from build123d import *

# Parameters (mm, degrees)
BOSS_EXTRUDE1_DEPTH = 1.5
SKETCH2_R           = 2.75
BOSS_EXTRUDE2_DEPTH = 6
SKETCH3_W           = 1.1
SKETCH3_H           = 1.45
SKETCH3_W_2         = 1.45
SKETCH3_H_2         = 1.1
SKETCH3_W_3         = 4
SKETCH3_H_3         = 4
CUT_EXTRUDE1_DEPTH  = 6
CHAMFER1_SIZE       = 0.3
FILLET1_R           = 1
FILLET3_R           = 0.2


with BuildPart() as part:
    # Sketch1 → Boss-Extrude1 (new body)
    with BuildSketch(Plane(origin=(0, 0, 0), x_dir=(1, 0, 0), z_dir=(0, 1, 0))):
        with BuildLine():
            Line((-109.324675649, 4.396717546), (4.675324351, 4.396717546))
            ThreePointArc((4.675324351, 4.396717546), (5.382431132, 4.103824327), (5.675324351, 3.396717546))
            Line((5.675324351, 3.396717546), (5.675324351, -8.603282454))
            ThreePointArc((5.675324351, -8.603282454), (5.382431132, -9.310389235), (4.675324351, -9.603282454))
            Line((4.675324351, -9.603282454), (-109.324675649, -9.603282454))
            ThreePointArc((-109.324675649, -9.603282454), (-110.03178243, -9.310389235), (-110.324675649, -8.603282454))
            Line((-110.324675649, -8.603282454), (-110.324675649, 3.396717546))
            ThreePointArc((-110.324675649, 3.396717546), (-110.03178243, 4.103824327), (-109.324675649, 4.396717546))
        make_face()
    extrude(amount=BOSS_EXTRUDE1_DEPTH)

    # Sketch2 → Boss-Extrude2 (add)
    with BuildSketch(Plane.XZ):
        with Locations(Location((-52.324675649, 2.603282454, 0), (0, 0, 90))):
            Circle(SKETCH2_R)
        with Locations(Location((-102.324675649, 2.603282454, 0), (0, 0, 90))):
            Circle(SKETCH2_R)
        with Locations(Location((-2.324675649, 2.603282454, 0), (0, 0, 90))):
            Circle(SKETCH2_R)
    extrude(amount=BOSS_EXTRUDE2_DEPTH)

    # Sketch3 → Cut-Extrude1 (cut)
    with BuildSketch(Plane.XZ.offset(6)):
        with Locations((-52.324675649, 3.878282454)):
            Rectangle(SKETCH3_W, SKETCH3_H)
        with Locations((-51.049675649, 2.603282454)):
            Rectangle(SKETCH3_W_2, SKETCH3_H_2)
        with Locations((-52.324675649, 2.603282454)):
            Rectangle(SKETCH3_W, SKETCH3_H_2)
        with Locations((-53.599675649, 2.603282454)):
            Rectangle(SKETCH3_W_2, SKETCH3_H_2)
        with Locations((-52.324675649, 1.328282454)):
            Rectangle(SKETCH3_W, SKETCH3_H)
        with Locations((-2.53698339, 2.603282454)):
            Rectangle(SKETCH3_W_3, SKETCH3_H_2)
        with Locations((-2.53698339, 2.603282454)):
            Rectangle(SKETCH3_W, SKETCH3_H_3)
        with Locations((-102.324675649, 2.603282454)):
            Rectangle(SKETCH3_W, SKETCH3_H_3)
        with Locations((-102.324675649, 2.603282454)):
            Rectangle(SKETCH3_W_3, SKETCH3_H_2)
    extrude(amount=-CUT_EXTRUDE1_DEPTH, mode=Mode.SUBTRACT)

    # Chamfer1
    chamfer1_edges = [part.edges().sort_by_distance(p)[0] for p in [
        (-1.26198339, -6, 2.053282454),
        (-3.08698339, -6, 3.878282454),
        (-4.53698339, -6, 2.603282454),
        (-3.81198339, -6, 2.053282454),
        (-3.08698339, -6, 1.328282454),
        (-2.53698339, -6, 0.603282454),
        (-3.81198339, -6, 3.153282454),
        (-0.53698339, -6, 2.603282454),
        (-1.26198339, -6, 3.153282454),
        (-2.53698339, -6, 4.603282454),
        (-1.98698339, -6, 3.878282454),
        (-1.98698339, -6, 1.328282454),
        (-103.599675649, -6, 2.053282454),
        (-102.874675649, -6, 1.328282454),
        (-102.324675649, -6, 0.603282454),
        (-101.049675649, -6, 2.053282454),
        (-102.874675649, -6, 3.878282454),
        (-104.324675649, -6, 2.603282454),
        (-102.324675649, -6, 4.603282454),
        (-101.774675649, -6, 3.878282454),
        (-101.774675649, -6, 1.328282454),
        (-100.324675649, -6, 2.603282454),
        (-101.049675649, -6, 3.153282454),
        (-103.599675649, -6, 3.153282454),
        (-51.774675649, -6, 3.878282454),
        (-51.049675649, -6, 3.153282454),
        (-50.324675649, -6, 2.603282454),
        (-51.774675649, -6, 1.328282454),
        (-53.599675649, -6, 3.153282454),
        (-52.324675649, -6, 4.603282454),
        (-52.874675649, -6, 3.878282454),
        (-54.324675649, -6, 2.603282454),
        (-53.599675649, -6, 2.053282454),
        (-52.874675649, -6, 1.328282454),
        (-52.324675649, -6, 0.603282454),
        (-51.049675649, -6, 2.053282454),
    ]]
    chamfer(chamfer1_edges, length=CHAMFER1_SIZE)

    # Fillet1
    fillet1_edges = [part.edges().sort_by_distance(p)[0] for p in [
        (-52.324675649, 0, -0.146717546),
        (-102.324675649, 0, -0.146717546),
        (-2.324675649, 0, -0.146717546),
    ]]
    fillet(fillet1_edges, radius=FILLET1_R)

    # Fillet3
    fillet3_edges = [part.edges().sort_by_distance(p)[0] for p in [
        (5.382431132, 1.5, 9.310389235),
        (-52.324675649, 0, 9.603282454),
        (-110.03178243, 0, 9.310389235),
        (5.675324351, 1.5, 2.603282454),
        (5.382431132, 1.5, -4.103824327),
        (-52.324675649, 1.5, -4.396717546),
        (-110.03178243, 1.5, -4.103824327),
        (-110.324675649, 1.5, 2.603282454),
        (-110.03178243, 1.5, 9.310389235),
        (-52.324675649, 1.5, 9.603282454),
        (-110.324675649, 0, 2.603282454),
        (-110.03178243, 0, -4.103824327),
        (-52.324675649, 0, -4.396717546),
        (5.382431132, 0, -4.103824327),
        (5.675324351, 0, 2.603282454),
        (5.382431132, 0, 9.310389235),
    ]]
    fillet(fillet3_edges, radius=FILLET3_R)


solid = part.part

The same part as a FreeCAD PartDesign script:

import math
import FreeCAD as App
import Part
import Sketcher
Q = App.Units.Quantity


def edges_at(feature, points):
    """Names of the edges that pass closest to the given points."""
    edges = feature.Shape.Edges
    near = lambda p: min(range(len(edges)), key=lambda i: edges[i].distToShape(Part.Vertex(*p))[0])
    return sorted({f"Edge{near(p) + 1}" for p in points})


def add_polygon(sketch, points):
    """Adds a closed chain of lines whose ends are joined by coincident constraints."""
    first, n = sketch.GeometryCount, len(points)
    for a, b in zip(points, points[1:] + points[:1]):
        sketch.addGeometry(Part.LineSegment(App.Vector(*a, 0), App.Vector(*b, 0)), False)
    for i in range(n):
        sketch.addConstraint(Sketcher.Constraint("Coincident", first + i, 2, first + (i + 1) % n, 1))

doc = App.newDocument("Part")
body = doc.addObject("PartDesign::Body", "Body")

sketch1 = body.newObject("Sketcher::SketchObject", "Sketch")
sketch1.AttachmentSupport = (doc.getObject("XZ_Plane"), [""])
sketch1.MapMode = "FlatFace"
sketch1.addGeometry([
    Part.LineSegment(App.Vector(4.7, -4.4, 0), App.Vector(-109.3, -4.4, 0)),
    Part.ArcOfCircle(Part.Circle(App.Vector(-109.3, -3.4, 0), App.Vector(0, 0, 1), 1), math.radians(-180), math.radians(-90)),
    Part.LineSegment(App.Vector(-110.3, -3.4, 0), App.Vector(-110.3, 8.6, 0)),
    Part.ArcOfCircle(Part.Circle(App.Vector(-109.3, 8.6, 0), App.Vector(0, 0, 1), 1), math.radians(90), math.radians(180)),
    Part.LineSegment(App.Vector(-109.3, 9.6, 0), App.Vector(4.7, 9.6, 0)),
    Part.ArcOfCircle(Part.Circle(App.Vector(4.7, 8.6, 0), App.Vector(0, 0, 1), 1), math.radians(0), math.radians(90)),
    Part.LineSegment(App.Vector(5.7, 8.6, 0), App.Vector(5.7, -3.4, 0)),
    Part.ArcOfCircle(Part.Circle(App.Vector(4.7, -3.4, 0), App.Vector(0, 0, 1), 1), math.radians(-90), math.radians(0)),
], False)
sketch1.addConstraint([
    Sketcher.Constraint("Tangent", 0, 2, 1, 2),
    Sketcher.Constraint("Tangent", 1, 1, 2, 1),
    Sketcher.Constraint("Tangent", 2, 2, 3, 2),
    Sketcher.Constraint("Tangent", 3, 1, 4, 1),
    Sketcher.Constraint("Tangent", 4, 2, 5, 2),
    Sketcher.Constraint("Tangent", 5, 1, 6, 1),
    Sketcher.Constraint("Tangent", 6, 2, 7, 2),
    Sketcher.Constraint("Tangent", 7, 1, 0, 1),
    Sketcher.Constraint("Horizontal", 0),
    Sketcher.Constraint("Vertical", 2),
    Sketcher.Constraint("Horizontal", 4),
    Sketcher.Constraint("Vertical", 6),
    Sketcher.Constraint("Equal", 1, 3),
    Sketcher.Constraint("Equal", 3, 5),
    Sketcher.Constraint("Equal", 5, 7),
    Sketcher.Constraint("Radius", 1, Q("1 mm")),
    Sketcher.Constraint("DistanceX", 0, 2, 0, 1, Q("114 mm")),
    Sketcher.Constraint("DistanceY", 2, 1, 2, 2, Q("12 mm")),
    Sketcher.Constraint("DistanceX", 1, 3, -1, 1, Q("109.324676 mm")),
    Sketcher.Constraint("DistanceY", 1, 3, -1, 1, Q("3.396718 mm")),
])
pad1 = body.newObject("PartDesign::Pad", "Pad")
pad1.Profile = sketch1
pad1.Length = 1.5
pad1.Reversed = True

sketch2 = body.newObject("Sketcher::SketchObject", "Sketch001")
sketch2.AttachmentSupport = (doc.getObject("XZ_Plane"), [""])
sketch2.MapMode = "FlatFace"
sketch2.addGeometry([
    Part.Circle(App.Vector(-52.3, 2.6, 0), App.Vector(0, 0, 1), 2.8),
    Part.Circle(App.Vector(-102.3, 2.6, 0), App.Vector(0, 0, 1), 2.8),
    Part.Circle(App.Vector(-2.3, 2.6, 0), App.Vector(0, 0, 1), 2.8),
], False)
sketch2.addConstraint([
    Sketcher.Constraint("Equal", 0, 1),
    Sketcher.Constraint("Equal", 1, 2),
    Sketcher.Constraint("Horizontal", 0, 3, 1, 3),
    Sketcher.Constraint("Horizontal", 1, 3, 2, 3),
    Sketcher.Constraint("Diameter", 0, Q("5.5 mm")),
    Sketcher.Constraint("DistanceX", 1, 3, 0, 3, Q("50 mm")),
    Sketcher.Constraint("DistanceX", 0, 3, 2, 3, Q("50 mm")),
    Sketcher.Constraint("DistanceX", 0, 3, -1, 1, Q("52.324676 mm")),
    Sketcher.Constraint("DistanceY", -1, 1, 0, 3, Q("2.603282 mm")),
])
pad2 = body.newObject("PartDesign::Pad", "Pad001")
pad2.Profile = sketch2
pad2.Length = 6

sketch3 = body.newObject("Sketcher::SketchObject", "Sketch002")
sketch3.AttachmentSupport = (doc.getObject("XZ_Plane"), [""])
sketch3.MapMode = "FlatFace"
sketch3.AttachmentOffset = App.Placement(App.Vector(0, 0, 6), App.Rotation())
add_polygon(sketch3, [(-52.9, 4.6), (-52.9, 3.2), (-54.3, 3.2), (-54.3, 2.1), (-52.9, 2.1), (-52.9, 0.6), (-51.8, 0.6), (-51.8, 2.1), (-50.3, 2.1), (-50.3, 3.2), (-51.8, 3.2), (-51.8, 4.6)])
add_polygon(sketch3, [(-4.5, 3.2), (-4.5, 2.1), (-3.1, 2.1), (-3.1, 0.6), (-2, 0.6), (-2, 2.1), (-0.5, 2.1), (-0.5, 3.2), (-2, 3.2), (-2, 4.6), (-3.1, 4.6), (-3.1, 3.2)])
add_polygon(sketch3, [(-102.9, 2.1), (-102.9, 0.6), (-101.8, 0.6), (-101.8, 2.1), (-100.3, 2.1), (-100.3, 3.2), (-101.8, 3.2), (-101.8, 4.6), (-102.9, 4.6), (-102.9, 3.2), (-104.3, 3.2), (-104.3, 2.1)])
sketch3.addConstraint([
    Sketcher.Constraint("Vertical", 0),
    Sketcher.Constraint("Horizontal", 1),
    Sketcher.Constraint("Vertical", 2),
    Sketcher.Constraint("Horizontal", 3),
    Sketcher.Constraint("Vertical", 4),
    Sketcher.Constraint("Horizontal", 5),
    Sketcher.Constraint("Vertical", 6),
    Sketcher.Constraint("Horizontal", 7),
    Sketcher.Constraint("Vertical", 8),
    Sketcher.Constraint("Horizontal", 9),
    Sketcher.Constraint("Vertical", 10),
    Sketcher.Constraint("Horizontal", 11),
    Sketcher.Constraint("Vertical", 12),
    Sketcher.Constraint("Horizontal", 13),
    Sketcher.Constraint("Vertical", 14),
    Sketcher.Constraint("Horizontal", 15),
    Sketcher.Constraint("Vertical", 16),
    Sketcher.Constraint("Horizontal", 17),
    Sketcher.Constraint("Vertical", 18),
    Sketcher.Constraint("Horizontal", 19),
    Sketcher.Constraint("Vertical", 20),
    Sketcher.Constraint("Horizontal", 21),
    Sketcher.Constraint("Vertical", 22),
    Sketcher.Constraint("Horizontal", 23),
    Sketcher.Constraint("Vertical", 24),
    Sketcher.Constraint("Horizontal", 25),
    Sketcher.Constraint("Vertical", 26),
    Sketcher.Constraint("Horizontal", 27),
    Sketcher.Constraint("Vertical", 28),
    Sketcher.Constraint("Horizontal", 29),
    Sketcher.Constraint("Vertical", 30),
    Sketcher.Constraint("Horizontal", 31),
    Sketcher.Constraint("Vertical", 32),
    Sketcher.Constraint("Horizontal", 33),
    Sketcher.Constraint("Vertical", 34),
    Sketcher.Constraint("Horizontal", 35),
    Sketcher.Constraint("Horizontal", 3, 2, 6, 2),
    Sketcher.Constraint("Horizontal", 1, 2, 8, 2),
    Sketcher.Constraint("Horizontal", 7, 2, 12, 2),
    Sketcher.Constraint("Horizontal", 5, 2, 14, 2),
    Sketcher.Constraint("Horizontal", 13, 2, 16, 2),
    Sketcher.Constraint("Horizontal", 9, 2, 18, 2),
    Sketcher.Constraint("Horizontal", 11, 2, 20, 2),
    Sketcher.Constraint("Horizontal", 19, 2, 22, 2),
    Sketcher.Constraint("Horizontal", 15, 2, 24, 2),
    Sketcher.Constraint("Horizontal", 17, 2, 26, 2),
    Sketcher.Constraint("Horizontal", 23, 2, 28, 2),
    Sketcher.Constraint("Horizontal", 21, 2, 30, 2),
    Sketcher.Constraint("Horizontal", 29, 2, 32, 2),
    Sketcher.Constraint("Horizontal", 27, 2, 34, 2),
    Sketcher.Constraint("Vertical", 0, 2, 3, 2),
    Sketcher.Constraint("Vertical", 6, 2, 9, 2),
    Sketcher.Constraint("Vertical", 16, 2, 19, 2),
    Sketcher.Constraint("Vertical", 14, 2, 21, 2),
    Sketcher.Constraint("Vertical", 26, 2, 29, 2),
    Sketcher.Constraint("Vertical", 24, 2, 31, 2),
    Sketcher.Constraint("Equal", 3, 7),
    Sketcher.Constraint("Equal", 9, 13),
    Sketcher.Constraint("Equal", 11, 15),
    Sketcher.Constraint("Equal", 13, 17),
    Sketcher.Constraint("Equal", 21, 25),
    Sketcher.Constraint("Equal", 23, 27),
    Sketcher.Constraint("Equal", 29, 33),
    Sketcher.Constraint("Equal", 35, 0),
    Sketcher.Constraint("Equal", 31, 2),
    Sketcher.Constraint("Equal", 0, 4),
    Sketcher.Constraint("DistanceX", 5, 1, 5, 2, Q("1.1 mm")),
    Sketcher.Constraint("DistanceX", 12, 2, 17, 2, Q("4 mm")),
    Sketcher.Constraint("DistanceX", 24, 2, 4, 2, Q("50 mm")),
    Sketcher.Constraint("DistanceX", 0, 2, -1, 1, Q("52.874676 mm")),
    Sketcher.Constraint("DistanceY", -1, 1, 0, 2, Q("3.153282 mm")),
    Sketcher.Constraint("DistanceX", 12, 2, -1, 1, Q("4.536983 mm")),
])
pocket1 = body.newObject("PartDesign::Pocket", "Pocket")
pocket1.Profile = sketch3
pocket1.Length = 6
doc.recompute()

chamfer = body.newObject("PartDesign::Chamfer", "Chamfer")
chamfer.Base = (pocket1, edges_at(pocket1, [
    (-1.262, -6, 2.053),
    (-3.087, -6, 3.878),
    (-4.537, -6, 2.603),
    (-3.812, -6, 2.053),
    (-3.087, -6, 1.328),
    (-2.537, -6, 0.603),
    (-3.812, -6, 3.153),
    (-0.537, -6, 2.603),
    (-1.262, -6, 3.153),
    (-2.537, -6, 4.603),
    (-1.987, -6, 3.878),
    (-1.987, -6, 1.328),
    (-103.6, -6, 2.053),
    (-102.875, -6, 1.328),
    (-102.325, -6, 0.603),
    (-101.05, -6, 2.053),
    (-102.875, -6, 3.878),
    (-104.325, -6, 2.603),
    (-102.325, -6, 4.603),
    (-101.775, -6, 3.878),
    (-101.775, -6, 1.328),
    (-100.325, -6, 2.603),
    (-101.05, -6, 3.153),
    (-103.6, -6, 3.153),
    (-51.775, -6, 3.878),
    (-51.05, -6, 3.153),
    (-50.325, -6, 2.603),
    (-51.775, -6, 1.328),
    (-53.6, -6, 3.153),
    (-52.325, -6, 4.603),
    (-52.875, -6, 3.878),
    (-54.325, -6, 2.603),
    (-53.6, -6, 2.053),
    (-52.875, -6, 1.328),
    (-52.325, -6, 0.603),
    (-51.05, -6, 2.053),
]))
chamfer.Size = 0.3
doc.recompute()

fillet = body.newObject("PartDesign::Fillet", "Fillet")
fillet.Base = (chamfer, edges_at(chamfer, [(-52.325, 0, -0.147), (-102.325, 0, -0.147), (-2.325, 0, -0.147)]))
fillet.Radius = 1
doc.recompute()

fillet2 = body.newObject("PartDesign::Fillet", "Fillet001")
fillet2.Base = (fillet, edges_at(fillet, [
    (5.382, 1.5, 9.31),
    (-52.325, 0, 9.603),
    (-110.032, 0, 9.31),
    (5.675, 1.5, 2.603),
    (5.382, 1.5, -4.104),
    (-52.325, 1.5, -4.397),
    (-110.032, 1.5, -4.104),
    (-110.325, 1.5, 2.603),
    (-110.032, 1.5, 9.31),
    (-52.325, 1.5, 9.603),
    (-110.325, 0, 2.603),
    (-110.032, 0, -4.104),
    (-52.325, 0, -4.397),
    (5.382, 0, -4.104),
    (5.675, 0, 2.603),
    (5.382, 0, 9.31),
]))
fillet2.Radius = 0.2

doc.recompute()
